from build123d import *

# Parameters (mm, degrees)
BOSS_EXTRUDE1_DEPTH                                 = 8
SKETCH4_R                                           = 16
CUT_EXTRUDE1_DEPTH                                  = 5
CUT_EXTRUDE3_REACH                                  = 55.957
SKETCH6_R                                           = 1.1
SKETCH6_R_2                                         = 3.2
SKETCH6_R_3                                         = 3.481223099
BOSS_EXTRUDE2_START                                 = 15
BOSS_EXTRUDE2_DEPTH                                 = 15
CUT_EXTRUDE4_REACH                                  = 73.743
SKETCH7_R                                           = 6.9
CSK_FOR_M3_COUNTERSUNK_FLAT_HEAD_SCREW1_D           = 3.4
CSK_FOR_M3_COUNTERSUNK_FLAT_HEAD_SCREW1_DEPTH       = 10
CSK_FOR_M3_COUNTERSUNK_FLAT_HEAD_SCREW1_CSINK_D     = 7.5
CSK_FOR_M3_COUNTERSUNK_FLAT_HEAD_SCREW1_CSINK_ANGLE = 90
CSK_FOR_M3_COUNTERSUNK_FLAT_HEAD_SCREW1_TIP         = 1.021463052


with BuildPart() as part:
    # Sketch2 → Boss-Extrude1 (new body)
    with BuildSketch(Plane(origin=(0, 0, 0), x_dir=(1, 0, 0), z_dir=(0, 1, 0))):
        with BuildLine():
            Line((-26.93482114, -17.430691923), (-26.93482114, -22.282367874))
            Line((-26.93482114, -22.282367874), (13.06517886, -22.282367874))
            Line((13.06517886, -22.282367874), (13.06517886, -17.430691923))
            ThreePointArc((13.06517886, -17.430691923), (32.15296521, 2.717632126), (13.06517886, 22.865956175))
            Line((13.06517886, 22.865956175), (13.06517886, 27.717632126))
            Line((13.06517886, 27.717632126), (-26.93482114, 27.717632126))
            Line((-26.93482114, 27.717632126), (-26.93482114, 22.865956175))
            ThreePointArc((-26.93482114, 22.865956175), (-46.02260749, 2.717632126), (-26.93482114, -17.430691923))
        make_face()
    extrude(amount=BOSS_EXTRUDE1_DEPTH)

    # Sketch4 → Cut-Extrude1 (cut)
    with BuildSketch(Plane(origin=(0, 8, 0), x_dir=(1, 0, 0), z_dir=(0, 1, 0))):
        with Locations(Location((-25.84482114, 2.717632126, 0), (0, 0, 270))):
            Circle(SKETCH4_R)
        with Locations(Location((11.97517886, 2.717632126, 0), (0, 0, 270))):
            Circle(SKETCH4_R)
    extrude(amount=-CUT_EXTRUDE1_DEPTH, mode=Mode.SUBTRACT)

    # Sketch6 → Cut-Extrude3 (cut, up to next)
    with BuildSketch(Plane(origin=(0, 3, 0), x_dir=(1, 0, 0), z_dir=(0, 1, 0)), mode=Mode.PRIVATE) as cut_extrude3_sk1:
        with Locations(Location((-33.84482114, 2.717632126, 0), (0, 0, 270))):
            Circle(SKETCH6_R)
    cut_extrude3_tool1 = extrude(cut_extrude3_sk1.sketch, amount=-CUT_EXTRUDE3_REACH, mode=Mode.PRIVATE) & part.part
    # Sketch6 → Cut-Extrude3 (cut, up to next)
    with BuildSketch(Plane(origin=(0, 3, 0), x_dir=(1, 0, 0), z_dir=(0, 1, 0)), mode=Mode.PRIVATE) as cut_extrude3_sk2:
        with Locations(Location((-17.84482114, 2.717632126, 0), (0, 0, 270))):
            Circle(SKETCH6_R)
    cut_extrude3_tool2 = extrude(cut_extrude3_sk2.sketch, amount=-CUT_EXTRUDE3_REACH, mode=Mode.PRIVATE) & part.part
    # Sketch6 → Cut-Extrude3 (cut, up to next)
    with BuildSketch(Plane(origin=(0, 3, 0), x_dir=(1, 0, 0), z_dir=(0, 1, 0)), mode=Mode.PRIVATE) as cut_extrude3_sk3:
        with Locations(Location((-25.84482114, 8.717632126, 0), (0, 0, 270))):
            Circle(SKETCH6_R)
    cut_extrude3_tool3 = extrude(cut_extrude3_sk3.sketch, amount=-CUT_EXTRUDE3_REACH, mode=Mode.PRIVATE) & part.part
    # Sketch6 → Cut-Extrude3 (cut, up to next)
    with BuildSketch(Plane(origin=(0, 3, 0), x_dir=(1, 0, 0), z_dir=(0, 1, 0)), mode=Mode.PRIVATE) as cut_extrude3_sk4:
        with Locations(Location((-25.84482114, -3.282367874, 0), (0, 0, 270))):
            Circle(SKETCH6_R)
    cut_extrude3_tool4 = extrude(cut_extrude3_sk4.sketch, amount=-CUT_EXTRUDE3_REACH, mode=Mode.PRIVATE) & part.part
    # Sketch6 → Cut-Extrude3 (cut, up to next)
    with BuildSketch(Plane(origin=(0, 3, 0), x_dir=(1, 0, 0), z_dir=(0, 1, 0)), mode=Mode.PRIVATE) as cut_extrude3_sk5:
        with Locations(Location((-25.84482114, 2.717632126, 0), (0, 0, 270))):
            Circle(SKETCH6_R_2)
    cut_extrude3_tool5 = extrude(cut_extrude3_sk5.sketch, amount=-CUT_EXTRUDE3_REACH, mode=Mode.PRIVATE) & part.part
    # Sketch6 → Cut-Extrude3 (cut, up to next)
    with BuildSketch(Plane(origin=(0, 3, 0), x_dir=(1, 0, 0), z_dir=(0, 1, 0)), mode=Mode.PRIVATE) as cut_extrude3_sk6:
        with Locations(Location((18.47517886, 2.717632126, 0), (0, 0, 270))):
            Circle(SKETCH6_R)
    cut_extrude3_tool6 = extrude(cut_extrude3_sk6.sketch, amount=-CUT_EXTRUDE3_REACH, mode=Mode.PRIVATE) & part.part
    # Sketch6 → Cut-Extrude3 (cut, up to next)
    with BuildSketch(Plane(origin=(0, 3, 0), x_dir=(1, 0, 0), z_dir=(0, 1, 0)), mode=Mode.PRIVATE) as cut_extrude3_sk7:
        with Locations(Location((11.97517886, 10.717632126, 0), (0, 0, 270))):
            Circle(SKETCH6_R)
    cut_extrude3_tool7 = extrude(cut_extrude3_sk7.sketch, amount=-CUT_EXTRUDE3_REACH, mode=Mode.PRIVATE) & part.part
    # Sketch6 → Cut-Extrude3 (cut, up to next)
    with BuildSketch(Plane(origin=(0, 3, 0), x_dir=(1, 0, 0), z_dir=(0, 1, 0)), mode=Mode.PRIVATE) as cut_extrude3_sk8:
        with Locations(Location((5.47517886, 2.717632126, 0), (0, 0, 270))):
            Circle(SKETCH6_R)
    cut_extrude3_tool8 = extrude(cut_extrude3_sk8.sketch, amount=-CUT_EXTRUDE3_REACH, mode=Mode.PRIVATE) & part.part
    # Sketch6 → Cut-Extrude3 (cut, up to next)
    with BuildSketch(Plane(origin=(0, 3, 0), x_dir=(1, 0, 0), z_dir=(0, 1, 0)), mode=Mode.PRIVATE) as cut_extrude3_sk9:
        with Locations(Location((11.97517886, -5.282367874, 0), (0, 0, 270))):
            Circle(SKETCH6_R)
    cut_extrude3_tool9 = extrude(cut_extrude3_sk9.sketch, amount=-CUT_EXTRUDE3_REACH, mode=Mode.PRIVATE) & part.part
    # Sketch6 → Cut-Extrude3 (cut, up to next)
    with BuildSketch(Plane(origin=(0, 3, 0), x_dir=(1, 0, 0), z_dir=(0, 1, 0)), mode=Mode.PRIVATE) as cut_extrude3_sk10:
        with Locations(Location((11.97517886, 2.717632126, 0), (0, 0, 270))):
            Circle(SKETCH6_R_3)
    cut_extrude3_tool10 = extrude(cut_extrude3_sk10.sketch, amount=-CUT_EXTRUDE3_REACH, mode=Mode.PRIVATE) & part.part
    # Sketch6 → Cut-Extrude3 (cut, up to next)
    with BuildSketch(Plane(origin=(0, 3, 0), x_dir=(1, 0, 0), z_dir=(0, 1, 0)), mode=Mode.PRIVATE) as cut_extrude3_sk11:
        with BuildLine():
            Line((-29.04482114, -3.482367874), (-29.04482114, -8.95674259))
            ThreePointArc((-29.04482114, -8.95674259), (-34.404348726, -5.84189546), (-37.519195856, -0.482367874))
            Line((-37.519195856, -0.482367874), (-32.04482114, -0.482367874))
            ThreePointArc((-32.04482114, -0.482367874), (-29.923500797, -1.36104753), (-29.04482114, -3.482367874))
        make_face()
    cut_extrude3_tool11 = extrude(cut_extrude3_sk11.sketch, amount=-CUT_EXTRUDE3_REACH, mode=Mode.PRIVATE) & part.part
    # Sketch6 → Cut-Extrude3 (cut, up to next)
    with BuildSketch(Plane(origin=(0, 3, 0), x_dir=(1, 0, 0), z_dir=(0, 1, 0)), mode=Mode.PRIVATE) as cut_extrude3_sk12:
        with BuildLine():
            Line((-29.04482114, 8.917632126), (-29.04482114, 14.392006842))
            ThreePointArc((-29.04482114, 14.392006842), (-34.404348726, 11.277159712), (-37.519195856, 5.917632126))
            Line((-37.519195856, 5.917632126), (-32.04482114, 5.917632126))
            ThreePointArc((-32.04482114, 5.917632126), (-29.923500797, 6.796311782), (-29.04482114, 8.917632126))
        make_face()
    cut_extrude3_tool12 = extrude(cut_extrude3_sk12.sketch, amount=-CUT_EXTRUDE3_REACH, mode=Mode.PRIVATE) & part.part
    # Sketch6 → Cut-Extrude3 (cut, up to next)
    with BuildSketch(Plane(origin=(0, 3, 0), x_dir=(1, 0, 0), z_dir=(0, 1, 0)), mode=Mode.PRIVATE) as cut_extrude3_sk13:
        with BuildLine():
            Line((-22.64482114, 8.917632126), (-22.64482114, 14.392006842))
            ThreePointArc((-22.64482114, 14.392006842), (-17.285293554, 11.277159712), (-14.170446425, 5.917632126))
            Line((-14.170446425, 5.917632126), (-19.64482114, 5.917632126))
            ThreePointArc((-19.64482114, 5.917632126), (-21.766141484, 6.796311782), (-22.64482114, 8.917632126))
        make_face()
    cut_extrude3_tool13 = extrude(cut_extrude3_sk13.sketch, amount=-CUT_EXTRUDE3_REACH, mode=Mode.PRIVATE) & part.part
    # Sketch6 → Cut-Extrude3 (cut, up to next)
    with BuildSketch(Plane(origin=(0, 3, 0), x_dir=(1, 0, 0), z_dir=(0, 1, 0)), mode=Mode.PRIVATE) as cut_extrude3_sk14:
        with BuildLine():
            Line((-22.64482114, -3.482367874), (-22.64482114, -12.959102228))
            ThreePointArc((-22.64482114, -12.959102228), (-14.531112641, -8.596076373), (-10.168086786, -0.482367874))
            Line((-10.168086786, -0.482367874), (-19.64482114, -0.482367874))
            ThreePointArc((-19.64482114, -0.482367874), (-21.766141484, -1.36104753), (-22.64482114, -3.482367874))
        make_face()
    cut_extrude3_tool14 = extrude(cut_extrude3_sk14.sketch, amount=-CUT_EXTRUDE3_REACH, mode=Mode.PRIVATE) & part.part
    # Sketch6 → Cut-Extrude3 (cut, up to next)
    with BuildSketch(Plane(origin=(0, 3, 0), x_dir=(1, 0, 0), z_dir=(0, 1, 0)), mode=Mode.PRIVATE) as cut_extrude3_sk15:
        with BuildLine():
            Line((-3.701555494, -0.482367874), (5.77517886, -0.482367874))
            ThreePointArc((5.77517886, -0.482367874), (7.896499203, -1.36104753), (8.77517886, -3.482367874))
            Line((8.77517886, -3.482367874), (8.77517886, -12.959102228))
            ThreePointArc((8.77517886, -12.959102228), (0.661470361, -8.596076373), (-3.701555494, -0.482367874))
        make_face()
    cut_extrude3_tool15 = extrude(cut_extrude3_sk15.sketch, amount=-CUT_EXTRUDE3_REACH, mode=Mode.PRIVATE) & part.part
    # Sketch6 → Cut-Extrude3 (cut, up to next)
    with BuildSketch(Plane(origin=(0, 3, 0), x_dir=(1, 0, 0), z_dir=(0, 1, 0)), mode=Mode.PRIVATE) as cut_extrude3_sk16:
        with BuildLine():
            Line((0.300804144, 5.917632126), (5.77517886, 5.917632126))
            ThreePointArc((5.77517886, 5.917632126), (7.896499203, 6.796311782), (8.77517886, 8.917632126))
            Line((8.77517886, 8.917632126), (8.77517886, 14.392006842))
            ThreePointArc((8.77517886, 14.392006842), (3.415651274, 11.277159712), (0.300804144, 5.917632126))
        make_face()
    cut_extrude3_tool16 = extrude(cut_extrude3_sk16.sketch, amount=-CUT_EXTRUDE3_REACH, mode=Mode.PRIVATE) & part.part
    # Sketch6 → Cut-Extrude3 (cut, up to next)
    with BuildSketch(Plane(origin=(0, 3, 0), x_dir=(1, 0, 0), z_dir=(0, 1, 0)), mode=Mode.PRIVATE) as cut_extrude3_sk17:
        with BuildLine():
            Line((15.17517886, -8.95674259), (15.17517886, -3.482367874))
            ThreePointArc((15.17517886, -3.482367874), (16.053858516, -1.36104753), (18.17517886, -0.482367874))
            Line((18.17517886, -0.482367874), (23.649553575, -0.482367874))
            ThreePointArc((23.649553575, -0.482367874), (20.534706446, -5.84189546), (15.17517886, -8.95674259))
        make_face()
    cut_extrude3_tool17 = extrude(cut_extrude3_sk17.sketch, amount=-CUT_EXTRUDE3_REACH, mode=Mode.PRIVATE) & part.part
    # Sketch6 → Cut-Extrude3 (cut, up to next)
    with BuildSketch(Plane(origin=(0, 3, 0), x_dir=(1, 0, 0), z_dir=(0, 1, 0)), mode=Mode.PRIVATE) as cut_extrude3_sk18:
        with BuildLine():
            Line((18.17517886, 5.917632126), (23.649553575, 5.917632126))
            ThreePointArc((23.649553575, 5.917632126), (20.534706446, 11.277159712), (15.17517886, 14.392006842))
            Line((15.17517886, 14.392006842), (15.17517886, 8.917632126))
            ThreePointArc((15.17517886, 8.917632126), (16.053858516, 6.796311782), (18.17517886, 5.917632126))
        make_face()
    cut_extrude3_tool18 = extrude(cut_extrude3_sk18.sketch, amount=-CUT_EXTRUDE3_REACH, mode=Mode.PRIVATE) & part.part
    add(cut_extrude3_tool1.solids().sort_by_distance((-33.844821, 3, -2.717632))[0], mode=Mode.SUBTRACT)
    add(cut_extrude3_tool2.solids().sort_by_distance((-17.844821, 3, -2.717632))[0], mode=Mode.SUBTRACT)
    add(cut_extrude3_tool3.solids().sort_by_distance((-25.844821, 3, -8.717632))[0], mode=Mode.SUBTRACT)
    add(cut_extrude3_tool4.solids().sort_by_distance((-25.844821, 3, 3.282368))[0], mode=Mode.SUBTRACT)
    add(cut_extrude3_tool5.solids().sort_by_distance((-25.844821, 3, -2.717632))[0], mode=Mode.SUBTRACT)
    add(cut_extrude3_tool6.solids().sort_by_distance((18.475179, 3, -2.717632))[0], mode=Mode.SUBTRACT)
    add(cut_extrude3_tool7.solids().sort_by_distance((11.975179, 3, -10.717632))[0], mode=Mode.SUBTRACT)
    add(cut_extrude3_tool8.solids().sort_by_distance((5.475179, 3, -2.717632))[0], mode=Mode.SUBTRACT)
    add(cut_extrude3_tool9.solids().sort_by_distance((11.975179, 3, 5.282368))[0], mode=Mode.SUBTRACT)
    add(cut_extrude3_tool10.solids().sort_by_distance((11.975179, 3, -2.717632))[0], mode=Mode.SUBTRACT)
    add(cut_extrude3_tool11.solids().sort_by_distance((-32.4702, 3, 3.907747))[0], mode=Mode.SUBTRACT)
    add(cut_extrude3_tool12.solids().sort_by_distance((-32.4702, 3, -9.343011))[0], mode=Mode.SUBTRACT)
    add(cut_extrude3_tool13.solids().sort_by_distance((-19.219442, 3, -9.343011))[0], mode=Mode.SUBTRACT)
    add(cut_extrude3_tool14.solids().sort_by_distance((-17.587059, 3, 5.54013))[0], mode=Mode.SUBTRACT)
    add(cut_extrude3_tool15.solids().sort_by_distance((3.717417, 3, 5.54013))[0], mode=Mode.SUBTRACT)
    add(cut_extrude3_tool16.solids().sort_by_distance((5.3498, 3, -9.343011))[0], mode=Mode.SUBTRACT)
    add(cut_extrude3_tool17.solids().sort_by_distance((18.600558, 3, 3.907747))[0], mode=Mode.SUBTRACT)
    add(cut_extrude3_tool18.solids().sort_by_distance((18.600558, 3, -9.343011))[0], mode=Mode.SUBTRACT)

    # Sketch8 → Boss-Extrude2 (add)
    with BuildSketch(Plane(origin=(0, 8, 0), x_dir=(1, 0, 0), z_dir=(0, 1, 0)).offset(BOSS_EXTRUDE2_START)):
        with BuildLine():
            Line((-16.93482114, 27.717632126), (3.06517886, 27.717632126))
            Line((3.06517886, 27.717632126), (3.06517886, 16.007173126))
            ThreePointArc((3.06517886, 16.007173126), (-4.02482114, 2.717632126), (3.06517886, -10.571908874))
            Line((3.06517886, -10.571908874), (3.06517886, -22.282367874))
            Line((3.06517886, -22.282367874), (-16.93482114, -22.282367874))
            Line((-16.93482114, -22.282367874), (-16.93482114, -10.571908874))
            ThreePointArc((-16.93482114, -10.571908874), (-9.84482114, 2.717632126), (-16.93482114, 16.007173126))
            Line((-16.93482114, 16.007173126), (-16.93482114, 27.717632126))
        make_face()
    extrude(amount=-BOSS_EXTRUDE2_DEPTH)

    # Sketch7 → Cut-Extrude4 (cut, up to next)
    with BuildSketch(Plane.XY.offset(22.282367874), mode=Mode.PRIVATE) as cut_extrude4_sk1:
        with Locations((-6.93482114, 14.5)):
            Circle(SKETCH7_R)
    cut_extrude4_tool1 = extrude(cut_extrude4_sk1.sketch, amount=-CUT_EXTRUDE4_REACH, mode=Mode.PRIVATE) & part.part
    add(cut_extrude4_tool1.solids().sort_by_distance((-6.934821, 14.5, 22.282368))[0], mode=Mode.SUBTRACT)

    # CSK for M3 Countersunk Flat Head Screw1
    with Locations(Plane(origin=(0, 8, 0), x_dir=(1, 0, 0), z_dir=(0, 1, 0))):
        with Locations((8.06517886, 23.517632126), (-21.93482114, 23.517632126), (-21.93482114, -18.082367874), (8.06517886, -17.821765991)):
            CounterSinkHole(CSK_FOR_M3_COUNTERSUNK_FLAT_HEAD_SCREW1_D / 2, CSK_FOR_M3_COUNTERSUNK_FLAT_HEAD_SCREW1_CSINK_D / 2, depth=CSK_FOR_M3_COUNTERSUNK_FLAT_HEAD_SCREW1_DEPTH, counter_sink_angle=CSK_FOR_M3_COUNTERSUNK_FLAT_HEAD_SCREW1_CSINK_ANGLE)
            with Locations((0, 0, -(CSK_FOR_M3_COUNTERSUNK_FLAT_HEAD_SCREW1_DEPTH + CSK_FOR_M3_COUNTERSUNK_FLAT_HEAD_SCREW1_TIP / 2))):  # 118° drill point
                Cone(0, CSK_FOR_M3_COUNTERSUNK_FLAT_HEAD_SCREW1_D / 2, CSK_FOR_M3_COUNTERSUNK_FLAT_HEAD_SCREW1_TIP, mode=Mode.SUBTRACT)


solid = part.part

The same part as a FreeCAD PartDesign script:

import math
import FreeCAD as App
import Part
import Sketcher
from FreeCAD import Vector
Q = App.Units.Quantity

doc = App.newDocument("Part")
body = doc.addObject("PartDesign::Body", "Body")

sketch1 = body.newObject("Sketcher::SketchObject", "Sketch")
sketch1.AttachmentSupport = (doc.getObject("XZ_Plane"), [""])
sketch1.MapMode = "FlatFace"
sketch1.addGeometry(Part.LineSegment(Vector(-26.9, 17.4, 0), Vector(-26.9, 22.3, 0)), False)
sketch1.addGeometry(Part.LineSegment(Vector(-26.9, 22.3, 0), Vector(13.1, 22.3, 0)), False)
sketch1.addGeometry(Part.LineSegment(Vector(13.1, 22.3, 0), Vector(13.1, 17.4, 0)), False)
sketch1.addGeometry(Part.ArcOfCircle(Part.Circle(Vector(12, -2.7, 0), Vector(0, 0, 1), 20.2), math.radians(-87), math.radians(87)), False)
sketch1.addGeometry(Part.LineSegment(Vector(13.1, -22.9, 0), Vector(13.1, -27.7, 0)), False)
sketch1.addGeometry(Part.LineSegment(Vector(13.1, -27.7, 0), Vector(-26.9, -27.7, 0)), False)
sketch1.addGeometry(Part.LineSegment(Vector(-26.9, -27.7, 0), Vector(-26.9, -22.9, 0)), False)
sketch1.addGeometry(Part.ArcOfCircle(Part.Circle(Vector(-25.8, -2.7, 0), Vector(0, 0, 1), 20.2), math.radians(93), math.radians(267)), False)
sketch1.addConstraint(Sketcher.Constraint("Coincident", 0, 2, 1, 1))
sketch1.addConstraint(Sketcher.Constraint("Coincident", 1, 2, 2, 1))
sketch1.addConstraint(Sketcher.Constraint("Coincident", 2, 2, 3, 2))
sketch1.addConstraint(Sketcher.Constraint("Coincident", 3, 1, 4, 1))
sketch1.addConstraint(Sketcher.Constraint("Coincident", 4, 2, 5, 1))
sketch1.addConstraint(Sketcher.Constraint("Coincident", 5, 2, 6, 1))
sketch1.addConstraint(Sketcher.Constraint("Coincident", 6, 2, 7, 2))
sketch1.addConstraint(Sketcher.Constraint("Coincident", 7, 1, 0, 1))
sketch1.addConstraint(Sketcher.Constraint("Vertical", 0))
sketch1.addConstraint(Sketcher.Constraint("Horizontal", 1))
sketch1.addConstraint(Sketcher.Constraint("Vertical", 2))
sketch1.addConstraint(Sketcher.Constraint("Vertical", 4))
sketch1.addConstraint(Sketcher.Constraint("Horizontal", 5))
sketch1.addConstraint(Sketcher.Constraint("Vertical", 6))
sketch1.addConstraint(Sketcher.Constraint("Equal", 3, 7))
sketch1.addConstraint(Sketcher.Constraint("Horizontal", 3, 3, 7, 3))
sketch1.addConstraint(Sketcher.Constraint("Horizontal", 3, 1, 6, 2))
sketch1.addConstraint(Sketcher.Constraint("Horizontal", 2, 2, 7, 1))
sketch1.addConstraint(Sketcher.Constraint("Vertical", 2, 2, 3, 1))
sketch1.addConstraint(Sketcher.Constraint("Equal", 2, 4))
sketch1.addConstraint(Sketcher.Constraint("DistanceX", 1, 1, 1, 2, Q("40 mm")))
sketch1.addConstraint(Sketcher.Constraint("DistanceY", 7, 3, 0, 2, Q("25 mm")))
sketch1.addConstraint(Sketcher.Constraint("DistanceX", 7, 3, 3, 3, Q("37.82 mm")))
sketch1.addConstraint(Sketcher.Constraint("Radius", 3, Q("20.177786 mm")))
sketch1.addConstraint(Sketcher.Constraint("DistanceX", -1, 1, 3, 3, Q("11.975179 mm")))
sketch1.addConstraint(Sketcher.Constraint("DistanceY", -1, 1, 2, 2, Q("17.430692 mm")))
pad1 = body.newObject("PartDesign::Pad", "Pad")
pad1.Profile = sketch1
pad1.Length = 8
pad1.Reversed = True

sketch2 = body.newObject("Sketcher::SketchObject", "Sketch001")
sketch2.AttachmentSupport = (doc.getObject("XZ_Plane"), [""])
sketch2.MapMode = "FlatFace"
sketch2.AttachmentOffset = App.Placement(Vector(0, 0, -8), App.Rotation())
sketch2.addGeometry(Part.Circle(Vector(-26, -3, 0), Vector(0, 0, 1), 16), False)
sketch2.addGeometry(Part.Circle(Vector(12, -3, 0), Vector(0, 0, 1), 16), False)
sketch2.addConstraint(Sketcher.Constraint("Equal", 0, 1))
sketch2.addConstraint(Sketcher.Constraint("Horizontal", 0, 3, 1, 3))
sketch2.addConstraint(Sketcher.Constraint("Diameter", 0, Q("32 mm")))
sketch2.addConstraint(Sketcher.Constraint("DistanceX", 0, 3, 1, 3, Q("37.82 mm")))
sketch2.addConstraint(Sketcher.Constraint("DistanceX", 0, 3, -1, 1, Q("25.844821 mm")))
sketch2.addConstraint(Sketcher.Constraint("DistanceY", 0, 3, -1, 1, Q("2.717632 mm")))
pocket1 = body.newObject("PartDesign::Pocket", "Pocket")
pocket1.Profile = sketch2
pocket1.Length = 5
pocket1.Reversed = True

sketch3 = body.newObject("Sketcher::SketchObject", "Sketch002")
sketch3.AttachmentSupport = (doc.getObject("XZ_Plane"), [""])
sketch3.MapMode = "FlatFace"
sketch3.AttachmentOffset = App.Placement(Vector(0, 0, -3), App.Rotation())
sketch3.addGeometry(Part.Circle(Vector(-33.8, -2.7, 0), Vector(0, 0, 1), 1.1), False)
sketch3.addConstraint(Sketcher.Constraint("Diameter", 0, Q("2.2 mm")))
sketch3.addConstraint(Sketcher.Constraint("DistanceX", 0, 3, -1, 1, Q("33.844821 mm")))
sketch3.addConstraint(Sketcher.Constraint("DistanceY", 0, 3, -1, 1, Q("2.717632 mm")))
pocket2 = body.newObject("PartDesign::Pocket", "Pocket001")
pocket2.Profile = sketch3
pocket2.Type = "UpToFirst"
pocket2.Reversed = True

sketch4 = body.newObject("Sketcher::SketchObject", "Sketch003")
sketch4.AttachmentSupport = (doc.getObject("XZ_Plane"), [""])
sketch4.MapMode = "FlatFace"
sketch4.AttachmentOffset = App.Placement(Vector(0, 0, -3), App.Rotation())
sketch4.addGeometry(Part.Circle(Vector(-17.8, -2.7, 0), Vector(0, 0, 1), 1.1), False)
sketch4.addConstraint(Sketcher.Constraint("Diameter", 0, Q("2.2 mm")))
sketch4.addConstraint(Sketcher.Constraint("DistanceX", 0, 3, -1, 1, Q("17.844821 mm")))
sketch4.addConstraint(Sketcher.Constraint("DistanceY", 0, 3, -1, 1, Q("2.717632 mm")))
pocket3 = body.newObject("PartDesign::Pocket", "Pocket002")
pocket3.Profile = sketch4
pocket3.Type = "UpToFirst"
pocket3.Reversed = True

sketch5 = body.newObject("Sketcher::SketchObject", "Sketch004")
sketch5.AttachmentSupport = (doc.getObject("XZ_Plane"), [""])
sketch5.MapMode = "FlatFace"
sketch5.AttachmentOffset = App.Placement(Vector(0, 0, -3), App.Rotation())
sketch5.addGeometry(Part.Circle(Vector(-25.8, -8.7, 0), Vector(0, 0, 1), 1.1), False)
sketch5.addConstraint(Sketcher.Constraint("Diameter", 0, Q("2.2 mm")))
sketch5.addConstraint(Sketcher.Constraint("DistanceX", 0, 3, -1, 1, Q("25.844821 mm")))
sketch5.addConstraint(Sketcher.Constraint("DistanceY", 0, 3, -1, 1, Q("8.717632 mm")))
pocket4 = body.newObject("PartDesign::Pocket", "Pocket003")
pocket4.Profile = sketch5
pocket4.Type = "UpToFirst"
pocket4.Reversed = True

sketch6 = body.newObject("Sketcher::SketchObject", "Sketch005")
sketch6.AttachmentSupport = (doc.getObject("XZ_Plane"), [""])
sketch6.MapMode = "FlatFace"
sketch6.AttachmentOffset = App.Placement(Vector(0, 0, -3), App.Rotation())
sketch6.addGeometry(Part.Circle(Vector(-25.8, 3.3, 0), Vector(0, 0, 1), 1.1), False)
sketch6.addConstraint(Sketcher.Constraint("Diameter", 0, Q("2.2 mm")))
sketch6.addConstraint(Sketcher.Constraint("DistanceX", 0, 3, -1, 1, Q("25.844821 mm")))
sketch6.addConstraint(Sketcher.Constraint("DistanceY", -1, 1, 0, 3, Q("3.282368 mm")))
pocket5 = body.newObject("PartDesign::Pocket", "Pocket004")
pocket5.Profile = sketch6
pocket5.Type = "UpToFirst"
pocket5.Reversed = True

sketch7 = body.newObject("Sketcher::SketchObject", "Sketch006")
sketch7.AttachmentSupport = (doc.getObject("XZ_Plane"), [""])
sketch7.MapMode = "FlatFace"
sketch7.AttachmentOffset = App.Placement(Vector(0, 0, -3), App.Rotation())
sketch7.addGeometry(Part.Circle(Vector(-25.8, -2.7, 0), Vector(0, 0, 1), 3.2), False)
sketch7.addConstraint(Sketcher.Constraint("Diameter", 0, Q("6.4 mm")))
sketch7.addConstraint(Sketcher.Constraint("DistanceX", 0, 3, -1, 1, Q("25.844821 mm")))
sketch7.addConstraint(Sketcher.Constraint("DistanceY", 0, 3, -1, 1, Q("2.717632 mm")))
pocket6 = body.newObject("PartDesign::Pocket", "Pocket005")
pocket6.Profile = sketch7
pocket6.Type = "UpToFirst"
pocket6.Reversed = True

sketch8 = body.newObject("Sketcher::SketchObject", "Sketch007")
sketch8.AttachmentSupport = (doc.getObject("XZ_Plane"), [""])
sketch8.MapMode = "FlatFace"
sketch8.AttachmentOffset = App.Placement(Vector(0, 0, -3), App.Rotation())
sketch8.addGeometry(Part.Circle(Vector(18.5, -2.7, 0), Vector(0, 0, 1), 1.1), False)
sketch8.addConstraint(Sketcher.Constraint("Diameter", 0, Q("2.2 mm")))
sketch8.addConstraint(Sketcher.Constraint("DistanceX", -1, 1, 0, 3, Q("18.475179 mm")))
sketch8.addConstraint(Sketcher.Constraint("DistanceY", 0, 3, -1, 1, Q("2.717632 mm")))
pocket7 = body.newObject("PartDesign::Pocket", "Pocket006")
pocket7.Profile = sketch8
pocket7.Type = "UpToFirst"
pocket7.Reversed = True

sketch9 = body.newObject("Sketcher::SketchObject", "Sketch008")
sketch9.AttachmentSupport = (doc.getObject("XZ_Plane"), [""])
sketch9.MapMode = "FlatFace"
sketch9.AttachmentOffset = App.Placement(Vector(0, 0, -3), App.Rotation())
sketch9.addGeometry(Part.Circle(Vector(12, -10.7, 0), Vector(0, 0, 1), 1.1), False)
sketch9.addConstraint(Sketcher.Constraint("Diameter", 0, Q("2.2 mm")))
sketch9.addConstraint(Sketcher.Constraint("DistanceX", -1, 1, 0, 3, Q("11.975179 mm")))
sketch9.addConstraint(Sketcher.Constraint("DistanceY", 0, 3, -1, 1, Q("10.717632 mm")))
pocket8 = body.newObject("PartDesign::Pocket", "Pocket007")
pocket8.Profile = sketch9
pocket8.Type = "UpToFirst"
pocket8.Reversed = True

sketch10 = body.newObject("Sketcher::SketchObject", "Sketch009")
sketch10.AttachmentSupport = (doc.getObject("XZ_Plane"), [""])
sketch10.MapMode = "FlatFace"
sketch10.AttachmentOffset = App.Placement(Vector(0, 0, -3), App.Rotation())
sketch10.addGeometry(Part.Circle(Vector(5.5, -2.7, 0), Vector(0, 0, 1), 1.1), False)
sketch10.addConstraint(Sketcher.Constraint("Diameter", 0, Q("2.2 mm")))
sketch10.addConstraint(Sketcher.Constraint("DistanceX", -1, 1, 0, 3, Q("5.475179 mm")))
sketch10.addConstraint(Sketcher.Constraint("DistanceY", 0, 3, -1, 1, Q("2.717632 mm")))
pocket9 = body.newObject("PartDesign::Pocket", "Pocket008")
pocket9.Profile = sketch10
pocket9.Type = "UpToFirst"
pocket9.Reversed = True

sketch11 = body.newObject("Sketcher::SketchObject", "Sketch010")
sketch11.AttachmentSupport = (doc.getObject("XZ_Plane"), [""])
sketch11.MapMode = "FlatFace"
sketch11.AttachmentOffset = App.Placement(Vector(0, 0, -3), App.Rotation())
sketch11.addGeometry(Part.Circle(Vector(12, 5.3, 0), Vector(0, 0, 1), 1.1), False)
sketch11.addConstraint(Sketcher.Constraint("Diameter", 0, Q("2.2 mm")))
sketch11.addConstraint(Sketcher.Constraint("DistanceX", -1, 1, 0, 3, Q("11.975179 mm")))
sketch11.addConstraint(Sketcher.Constraint("DistanceY", -1, 1, 0, 3, Q("5.282368 mm")))
pocket10 = body.newObject("PartDesign::Pocket", "Pocket009")
pocket10.Profile = sketch11
pocket10.Type = "UpToFirst"
pocket10.Reversed = True

sketch12 = body.newObject("Sketcher::SketchObject", "Sketch011")
sketch12.AttachmentSupport = (doc.getObject("XZ_Plane"), [""])
sketch12.MapMode = "FlatFace"
sketch12.AttachmentOffset = App.Placement(Vector(0, 0, -3), App.Rotation())
sketch12.addGeometry(Part.Circle(Vector(12, -2.7, 0), Vector(0, 0, 1), 3.5), False)
sketch12.addConstraint(Sketcher.Constraint("Diameter", 0, Q("6.962446 mm")))
sketch12.addConstraint(Sketcher.Constraint("DistanceX", -1, 1, 0, 3, Q("11.975179 mm")))
sketch12.addConstraint(Sketcher.Constraint("DistanceY", 0, 3, -1, 1, Q("2.717632 mm")))
pocket11 = body.newObject("PartDesign::Pocket", "Pocket010")
pocket11.Profile = sketch12
pocket11.Type = "UpToFirst"
pocket11.Reversed = True

sketch13 = body.newObject("Sketcher::SketchObject", "Sketch012")
sketch13.AttachmentSupport = (doc.getObject("XZ_Plane"), [""])
sketch13.MapMode = "FlatFace"
sketch13.AttachmentOffset = App.Placement(Vector(0, 0, -3), App.Rotation())
sketch13.addGeometry(Part.LineSegment(Vector(-29, 9, 0), Vector(-29, 3.5, 0)), False)
sketch13.addGeometry(Part.ArcOfCircle(Part.Circle(Vector(-32, 3.5, 0), Vector(0, 0, 1), 3), math.radians(-90), math.radians(0)), False)
sketch13.addGeometry(Part.LineSegment(Vector(-32, 0.5, 0), Vector(-37.5, 0.5, 0)), False)
sketch13.addGeometry(Part.ArcOfCircle(Part.Circle(Vector(-25.8, -2.7, 0), Vector(0, 0, 1), 12.1), math.radians(105), math.radians(165)), False)
sketch13.addConstraint(Sketcher.Constraint("Tangent", 0, 2, 1, 2))
sketch13.addConstraint(Sketcher.Constraint("Tangent", 1, 1, 2, 1))
sketch13.addConstraint(Sketcher.Constraint("Coincident", 2, 2, 3, 2))
sketch13.addConstraint(Sketcher.Constraint("Coincident", 3, 1, 0, 1))
sketch13.addConstraint(Sketcher.Constraint("Vertical", 0))
sketch13.addConstraint(Sketcher.Constraint("Horizontal", 2))
sketch13.addConstraint(Sketcher.Constraint("Equal", 2, 0))
sketch13.addConstraint(Sketcher.Constraint("Radius", 1, Q("3 mm")))
sketch13.addConstraint(Sketcher.Constraint("Radius", 3, Q("12.105 mm")))
sketch13.addConstraint(Sketcher.Constraint("DistanceX", 1, 3, 3, 3, Q("6.2 mm")))
sketch13.addConstraint(Sketcher.Constraint("DistanceX", 1, 3, -1, 1, Q("32.044821 mm")))
sketch13.addConstraint(Sketcher.Constraint("DistanceY", -1, 1, 1, 3, Q("3.482368 mm")))
pocket12 = body.newObject("PartDesign::Pocket", "Pocket011")
pocket12.Profile = sketch13
pocket12.Type = "UpToFirst"
pocket12.Reversed = True

sketch14 = body.newObject("Sketcher::SketchObject", "Sketch013")
sketch14.AttachmentSupport = (doc.getObject("XZ_Plane"), [""])
sketch14.MapMode = "FlatFace"
sketch14.AttachmentOffset = App.Placement(Vector(0, 0, -3), App.Rotation())
sketch14.addGeometry(Part.LineSegment(Vector(-29, -8.9, 0), Vector(-29, -14.4, 0)), False)
sketch14.addGeometry(Part.ArcOfCircle(Part.Circle(Vector(-25.8, -2.7, 0), Vector(0, 0, 1), 12.1), math.radians(-165), math.radians(-105)), False)
sketch14.addGeometry(Part.LineSegment(Vector(-37.5, -5.9, 0), Vector(-32, -5.9, 0)), False)
sketch14.addGeometry(Part.ArcOfCircle(Part.Circle(Vector(-32, -8.9, 0), Vector(0, 0, 1), 3), math.radians(0), math.radians(90)), False)
sketch14.addConstraint(Sketcher.Constraint("Coincident", 0, 2, 1, 2))
sketch14.addConstraint(Sketcher.Constraint("Coincident", 1, 1, 2, 1))
sketch14.addConstraint(Sketcher.Constraint("Tangent", 2, 2, 3, 2))
sketch14.addConstraint(Sketcher.Constraint("Tangent", 3, 1, 0, 1))
sketch14.addConstraint(Sketcher.Constraint("Vertical", 0))
sketch14.addConstraint(Sketcher.Constraint("Horizontal", 2))
sketch14.addConstraint(Sketcher.Constraint("Equal", 2, 0))
sketch14.addConstraint(Sketcher.Constraint("Radius", 3, Q("3 mm")))
sketch14.addConstraint(Sketcher.Constraint("Radius", 1, Q("12.105 mm")))
sketch14.addConstraint(Sketcher.Constraint("DistanceX", 3, 3, 1, 3, Q("6.2 mm")))
sketch14.addConstraint(Sketcher.Constraint("DistanceX", 1, 3, -1, 1, Q("25.844821 mm")))
sketch14.addConstraint(Sketcher.Constraint("DistanceY", 1, 3, -1, 1, Q("2.717632 mm")))
pocket13 = body.newObject("PartDesign::Pocket", "Pocket012")
pocket13.Profile = sketch14
pocket13.Type = "UpToFirst"
pocket13.Reversed = True

sketch15 = body.newObject("Sketcher::SketchObject", "Sketch014")
sketch15.AttachmentSupport = (doc.getObject("XZ_Plane"), [""])
sketch15.MapMode = "FlatFace"
sketch15.AttachmentOffset = App.Placement(Vector(0, 0, -3), App.Rotation())
sketch15.addGeometry(Part.LineSegment(Vector(-22.6, -14.4, 0), Vector(-22.6, -8.9, 0)), False)
sketch15.addGeometry(Part.ArcOfCircle(Part.Circle(Vector(-19.6, -8.9, 0), Vector(0, 0, 1), 3), math.radians(90), math.radians(180)), False)
sketch15.addGeometry(Part.LineSegment(Vector(-19.6, -5.9, 0), Vector(-14.2, -5.9, 0)), False)
sketch15.addGeometry(Part.ArcOfCircle(Part.Circle(Vector(-25.8, -2.7, 0), Vector(0, 0, 1), 12.1), math.radians(-75), math.radians(-15)), False)
sketch15.addConstraint(Sketcher.Constraint("Tangent", 0, 2, 1, 2))
sketch15.addConstraint(Sketcher.Constraint("Tangent", 1, 1, 2, 1))
sketch15.addConstraint(Sketcher.Constraint("Coincident", 2, 2, 3, 2))
sketch15.addConstraint(Sketcher.Constraint("Coincident", 3, 1, 0, 1))
sketch15.addConstraint(Sketcher.Constraint("Vertical", 0))
sketch15.addConstraint(Sketcher.Constraint("Horizontal", 2))
sketch15.addConstraint(Sketcher.Constraint("Equal", 2, 0))
sketch15.addConstraint(Sketcher.Constraint("Radius", 1, Q("3 mm")))
sketch15.addConstraint(Sketcher.Constraint("Radius", 3, Q("12.105 mm")))
sketch15.addConstraint(Sketcher.Constraint("DistanceX", 3, 3, 1, 3, Q("6.2 mm")))
sketch15.addConstraint(Sketcher.Constraint("DistanceX", 1, 3, -1, 1, Q("19.644821 mm")))
sketch15.addConstraint(Sketcher.Constraint("DistanceY", 1, 3, -1, 1, Q("8.917632 mm")))
pocket14 = body.newObject("PartDesign::Pocket", "Pocket013")
pocket14.Profile = sketch15
pocket14.Type = "UpToFirst"
pocket14.Reversed = True

sketch16 = body.newObject("Sketcher::SketchObject", "Sketch015")
sketch16.AttachmentSupport = (doc.getObject("XZ_Plane"), [""])
sketch16.MapMode = "FlatFace"
sketch16.AttachmentOffset = App.Placement(Vector(0, 0, -3), App.Rotation())
sketch16.addGeometry(Part.LineSegment(Vector(-22.6, 3.5, 0), Vector(-22.6, 13, 0)), False)
sketch16.addGeometry(Part.ArcOfCircle(Part.Circle(Vector(-25.8, -2.7, 0), Vector(0, 0, 1), 16), math.radians(12), math.radians(78)), False)
sketch16.addGeometry(Part.LineSegment(Vector(-10.2, 0.5, 0), Vector(-19.6, 0.5, 0)), False)
sketch16.addGeometry(Part.ArcOfCircle(Part.Circle(Vector(-19.6, 3.5, 0), Vector(0, 0, 1), 3), math.radians(180), math.radians(270)), False)
sketch16.addConstraint(Sketcher.Constraint("Coincident", 0, 2, 1, 2))
sketch16.addConstraint(Sketcher.Constraint("Coincident", 1, 1, 2, 1))
sketch16.addConstraint(Sketcher.Constraint("Tangent", 2, 2, 3, 2))
sketch16.addConstraint(Sketcher.Constraint("Tangent", 3, 1, 0, 1))
sketch16.addConstraint(Sketcher.Constraint("Vertical", 0))
sketch16.addConstraint(Sketcher.Constraint("Horizontal", 2))
sketch16.addConstraint(Sketcher.Constraint("Equal", 2, 0))
sketch16.addConstraint(Sketcher.Constraint("Radius", 1, Q("16 mm")))
sketch16.addConstraint(Sketcher.Constraint("Radius", 3, Q("3 mm")))
sketch16.addConstraint(Sketcher.Constraint("DistanceX", 1, 3, 3, 3, Q("6.2 mm")))
sketch16.addConstraint(Sketcher.Constraint("DistanceX", 1, 3, -1, 1, Q("25.844821 mm")))
sketch16.addConstraint(Sketcher.Constraint("DistanceY", 1, 3, -1, 1, Q("2.717632 mm")))
pocket15 = body.newObject("PartDesign::Pocket", "Pocket014")
pocket15.Profile = sketch16
pocket15.Type = "UpToFirst"
pocket15.Reversed = True

sketch17 = body.newObject("Sketcher::SketchObject", "Sketch016")
sketch17.AttachmentSupport = (doc.getObject("XZ_Plane"), [""])
sketch17.MapMode = "FlatFace"
sketch17.AttachmentOffset = App.Placement(Vector(0, 0, -3), App.Rotation())
sketch17.addGeometry(Part.LineSegment(Vector(5.8, 0.5, 0), Vector(-3.7, 0.5, 0)), False)
sketch17.addGeometry(Part.ArcOfCircle(Part.Circle(Vector(12, -2.7, 0), Vector(0, 0, 1), 16), math.radians(102), math.radians(168)), False)
sketch17.addGeometry(Part.LineSegment(Vector(8.8, 13, 0), Vector(8.8, 3.5, 0)), False)
sketch17.addGeometry(Part.ArcOfCircle(Part.Circle(Vector(5.8, 3.5, 0), Vector(0, 0, 1), 3), math.radians(-90), math.radians(0)), False)
sketch17.addConstraint(Sketcher.Constraint("Coincident", 0, 2, 1, 2))
sketch17.addConstraint(Sketcher.Constraint("Coincident", 1, 1, 2, 1))
sketch17.addConstraint(Sketcher.Constraint("Tangent", 2, 2, 3, 2))
sketch17.addConstraint(Sketcher.Constraint("Tangent", 3, 1, 0, 1))
sketch17.addConstraint(Sketcher.Constraint("Horizontal", 0))
sketch17.addConstraint(Sketcher.Constraint("Vertical", 2))
sketch17.addConstraint(Sketcher.Constraint("Equal", 0, 2))
sketch17.addConstraint(Sketcher.Constraint("Radius", 1, Q("16 mm")))
sketch17.addConstraint(Sketcher.Constraint("Radius", 3, Q("3 mm")))
sketch17.addConstraint(Sketcher.Constraint("DistanceX", 3, 3, 1, 3, Q("6.2 mm")))
sketch17.addConstraint(Sketcher.Constraint("DistanceX", -1, 1, 1, 3, Q("11.975179 mm")))
sketch17.addConstraint(Sketcher.Constraint("DistanceY", 1, 3, -1, 1, Q("2.717632 mm")))
pocket16 = body.newObject("PartDesign::Pocket", "Pocket015")
pocket16.Profile = sketch17
pocket16.Type = "UpToFirst"
pocket16.Reversed = True

sketch18 = body.newObject("Sketcher::SketchObject", "Sketch017")
sketch18.AttachmentSupport = (doc.getObject("XZ_Plane"), [""])
sketch18.MapMode = "FlatFace"
sketch18.AttachmentOffset = App.Placement(Vector(0, 0, -3), App.Rotation())
sketch18.addGeometry(Part.LineSegment(Vector(0.3, -5.9, 0), Vector(5.8, -5.9, 0)), False)
sketch18.addGeometry(Part.ArcOfCircle(Part.Circle(Vector(5.8, -8.9, 0), Vector(0, 0, 1), 3), math.radians(0), math.radians(90)), False)
sketch18.addGeometry(Part.LineSegment(Vector(8.8, -8.9, 0), Vector(8.8, -14.4, 0)), False)
sketch18.addGeometry(Part.ArcOfCircle(Part.Circle(Vector(12, -2.7, 0), Vector(0, 0, 1), 12.1), math.radians(-165), math.radians(-105)), False)
sketch18.addConstraint(Sketcher.Constraint("Tangent", 0, 2, 1, 2))
sketch18.addConstraint(Sketcher.Constraint("Tangent", 1, 1, 2, 1))
sketch18.addConstraint(Sketcher.Constraint("Coincident", 2, 2, 3, 2))
sketch18.addConstraint(Sketcher.Constraint("Coincident", 3, 1, 0, 1))
sketch18.addConstraint(Sketcher.Constraint("Horizontal", 0))
sketch18.addConstraint(Sketcher.Constraint("Vertical", 2))
sketch18.addConstraint(Sketcher.Constraint("Equal", 0, 2))
sketch18.addConstraint(Sketcher.Constraint("Radius", 1, Q("3 mm")))
sketch18.addConstraint(Sketcher.Constraint("Radius", 3, Q("12.105 mm")))
sketch18.addConstraint(Sketcher.Constraint("DistanceX", 1, 3, 3, 3, Q("6.2 mm")))
sketch18.addConstraint(Sketcher.Constraint("DistanceX", -1, 1, 1, 3, Q("5.775179 mm")))
sketch18.addConstraint(Sketcher.Constraint("DistanceY", 1, 3, -1, 1, Q("8.917632 mm")))
pocket17 = body.newObject("PartDesign::Pocket", "Pocket016")
pocket17.Profile = sketch18
pocket17.Type = "UpToFirst"
pocket17.Reversed = True

sketch19 = body.newObject("Sketcher::SketchObject", "Sketch018")
sketch19.AttachmentSupport = (doc.getObject("XZ_Plane"), [""])
sketch19.MapMode = "FlatFace"
sketch19.AttachmentOffset = App.Placement(Vector(0, 0, -3), App.Rotation())
sketch19.addGeometry(Part.LineSegment(Vector(15.2, 3.5, 0), Vector(15.2, 9, 0)), False)
sketch19.addGeometry(Part.ArcOfCircle(Part.Circle(Vector(12, -2.7, 0), Vector(0, 0, 1), 12.1), math.radians(15), math.radians(75)), False)
sketch19.addGeometry(Part.LineSegment(Vector(23.6, 0.5, 0), Vector(18.2, 0.5, 0)), False)
sketch19.addGeometry(Part.ArcOfCircle(Part.Circle(Vector(18.2, 3.5, 0), Vector(0, 0, 1), 3), math.radians(180), math.radians(270)), False)
sketch19.addConstraint(Sketcher.Constraint("Coincident", 0, 2, 1, 2))
sketch19.addConstraint(Sketcher.Constraint("Coincident", 1, 1, 2, 1))
sketch19.addConstraint(Sketcher.Constraint("Tangent", 2, 2, 3, 2))
sketch19.addConstraint(Sketcher.Constraint("Tangent", 3, 1, 0, 1))
sketch19.addConstraint(Sketcher.Constraint("Vertical", 0))
sketch19.addConstraint(Sketcher.Constraint("Horizontal", 2))
sketch19.addConstraint(Sketcher.Constraint("Equal", 2, 0))
sketch19.addConstraint(Sketcher.Constraint("Radius", 3, Q("3 mm")))
sketch19.addConstraint(Sketcher.Constraint("Radius", 1, Q("12.105 mm")))
sketch19.addConstraint(Sketcher.Constraint("DistanceX", 1, 3, 3, 3, Q("6.2 mm")))
sketch19.addConstraint(Sketcher.Constraint("DistanceX", -1, 1, 1, 3, Q("11.975179 mm")))
sketch19.addConstraint(Sketcher.Constraint("DistanceY", 1, 3, -1, 1, Q("2.717632 mm")))
pocket18 = body.newObject("PartDesign::Pocket", "Pocket017")
pocket18.Profile = sketch19
pocket18.Type = "UpToFirst"
pocket18.Reversed = True

sketch20 = body.newObject("Sketcher::SketchObject", "Sketch019")
sketch20.AttachmentSupport = (doc.getObject("XZ_Plane"), [""])
sketch20.MapMode = "FlatFace"
sketch20.AttachmentOffset = App.Placement(Vector(0, 0, -3), App.Rotation())
sketch20.addGeometry(Part.LineSegment(Vector(18.2, -5.9, 0), Vector(23.6, -5.9, 0)), False)
sketch20.addGeometry(Part.ArcOfCircle(Part.Circle(Vector(12, -2.7, 0), Vector(0, 0, 1), 12.1), math.radians(-75), math.radians(-15)), False)
sketch20.addGeometry(Part.LineSegment(Vector(15.2, -14.4, 0), Vector(15.2, -8.9, 0)), False)
sketch20.addGeometry(Part.ArcOfCircle(Part.Circle(Vector(18.2, -8.9, 0), Vector(0, 0, 1), 3), math.radians(90), math.radians(180)), False)
sketch20.addConstraint(Sketcher.Constraint("Coincident", 0, 2, 1, 2))
sketch20.addConstraint(Sketcher.Constraint("Coincident", 1, 1, 2, 1))
sketch20.addConstraint(Sketcher.Constraint("Tangent", 2, 2, 3, 2))
sketch20.addConstraint(Sketcher.Constraint("Tangent", 3, 1, 0, 1))
sketch20.addConstraint(Sketcher.Constraint("Horizontal", 0))
sketch20.addConstraint(Sketcher.Constraint("Vertical", 2))
sketch20.addConstraint(Sketcher.Constraint("Equal", 0, 2))
sketch20.addConstraint(Sketcher.Constraint("Radius", 3, Q("3 mm")))
sketch20.addConstraint(Sketcher.Constraint("Radius", 1, Q("12.105 mm")))
sketch20.addConstraint(Sketcher.Constraint("DistanceX", 1, 3, 3, 3, Q("6.2 mm")))
sketch20.addConstraint(Sketcher.Constraint("DistanceX", -1, 1, 1, 3, Q("11.975179 mm")))
sketch20.addConstraint(Sketcher.Constraint("DistanceY", 1, 3, -1, 1, Q("2.717632 mm")))
pocket19 = body.newObject("PartDesign::Pocket", "Pocket018")
pocket19.Profile = sketch20
pocket19.Type = "UpToFirst"
pocket19.Reversed = True

sketch21 = body.newObject("Sketcher::SketchObject", "Sketch020")
sketch21.AttachmentSupport = (doc.getObject("XZ_Plane"), [""])
sketch21.MapMode = "FlatFace"
sketch21.AttachmentOffset = App.Placement(Vector(0, 0, -23), App.Rotation())
sketch21.addGeometry(Part.LineSegment(Vector(3, -28, 0), Vector(-17, -28, 0)), False)
sketch21.addGeometry(Part.LineSegment(Vector(-17, -28, 0), Vector(-17, -16, 0)), False)
sketch21.addGeometry(Part.ArcOfCircle(Part.Circle(Vector(-26, -3, 0), Vector(0, 0, 1), 16), math.radians(-56), math.radians(56)), False)
sketch21.addGeometry(Part.LineSegment(Vector(-17, 11, 0), Vector(-17, 22, 0)), False)
sketch21.addGeometry(Part.LineSegment(Vector(-17, 22, 0), Vector(3, 22, 0)), False)
sketch21.addGeometry(Part.LineSegment(Vector(3, 22, 0), Vector(3, 11, 0)), False)
sketch21.addGeometry(Part.ArcOfCircle(Part.Circle(Vector(12, -3, 0), Vector(0, 0, 1), 16), math.radians(124), math.radians(236)), False)
sketch21.addGeometry(Part.LineSegment(Vector(3, -16, 0), Vector(3, -28, 0)), False)
sketch21.addConstraint(Sketcher.Constraint("Coincident", 0, 2, 1, 1))
sketch21.addConstraint(Sketcher.Constraint("Coincident", 1, 2, 2, 1))
sketch21.addConstraint(Sketcher.Constraint("Coincident", 2, 2, 3, 1))
sketch21.addConstraint(Sketcher.Constraint("Coincident", 3, 2, 4, 1))
sketch21.addConstraint(Sketcher.Constraint("Coincident", 4, 2, 5, 1))
sketch21.addConstraint(Sketcher.Constraint("Coincident", 5, 2, 6, 1))
sketch21.addConstraint(Sketcher.Constraint("Coincident", 6, 2, 7, 1))
sketch21.addConstraint(Sketcher.Constraint("Coincident", 7, 2, 0, 1))
sketch21.addConstraint(Sketcher.Constraint("Horizontal", 0))
sketch21.addConstraint(Sketcher.Constraint("Vertical", 1))
sketch21.addConstraint(Sketcher.Constraint("Vertical", 3))
sketch21.addConstraint(Sketcher.Constraint("Horizontal", 4))
sketch21.addConstraint(Sketcher.Constraint("Vertical", 5))
sketch21.addConstraint(Sketcher.Constraint("Vertical", 7))
sketch21.addConstraint(Sketcher.Constraint("Equal", 2, 6))
sketch21.addConstraint(Sketcher.Constraint("Horizontal", 2, 3, 6, 3))
sketch21.addConstraint(Sketcher.Constraint("Horizontal", 2, 2, 5, 2))
sketch21.addConstraint(Sketcher.Constraint("Horizontal", 1, 2, 6, 2))
sketch21.addConstraint(Sketcher.Constraint("Vertical", 1, 2, 2, 2))
sketch21.addConstraint(Sketcher.Constraint("Equal", 1, 3))
sketch21.addConstraint(Sketcher.Constraint("Radius", 2, Q("16 mm")))
sketch21.addConstraint(Sketcher.Constraint("DistanceX", 0, 2, 0, 1, Q("20 mm")))
sketch21.addConstraint(Sketcher.Constraint("DistanceY", 0, 2, 2, 3, Q("25 mm")))
sketch21.addConstraint(Sketcher.Constraint("DistanceX", 2, 3, 6, 3, Q("37.82 mm")))
sketch21.addConstraint(Sketcher.Constraint("DistanceX", 2, 3, -1, 1, Q("25.844821 mm")))
sketch21.addConstraint(Sketcher.Constraint("DistanceY", -1, 1, 2, 2, Q("10.571909 mm")))
pad2 = body.newObject("PartDesign::Pad", "Pad001")
pad2.Profile = sketch21
pad2.Length = 15

sketch22 = body.newObject("Sketcher::SketchObject", "Sketch021")
sketch22.AttachmentSupport = (doc.getObject("XY_Plane"), [""])
sketch22.MapMode = "FlatFace"
sketch22.AttachmentOffset = App.Placement(Vector(0, 0, 22.282368), App.Rotation())
sketch22.addGeometry(Part.Circle(Vector(-7, 14, 0), Vector(0, 0, 1), 7), False)
sketch22.addConstraint(Sketcher.Constraint("Diameter", 0, Q("13.8 mm")))
sketch22.addConstraint(Sketcher.Constraint("DistanceY", -1, 1, 0, 3, Q("14.5 mm")))
sketch22.addConstraint(Sketcher.Constraint("DistanceX", 0, 3, -1, 1, Q("6.934821 mm")))
pocket20 = body.newObject("PartDesign::Pocket", "Pocket019")
pocket20.Profile = sketch22
pocket20.Type = "UpToFirst"

sketch23 = body.newObject("Sketcher::SketchObject", "Sketch022")
sketch23.AttachmentSupport = (doc.getObject("XZ_Plane"), [""])
sketch23.MapMode = "FlatFace"
sketch23.AttachmentOffset = App.Placement(Vector(0, 0, -8), App.Rotation())
sketch23.addGeometry(Part.Circle(Vector(8.1, -23.5, 0), Vector(0, 0, 1), 1.7), False)
sketch23.addGeometry(Part.Circle(Vector(-21.9, -23.5, 0), Vector(0, 0, 1), 1.7), False)
sketch23.addGeometry(Part.Circle(Vector(-21.9, 18.1, 0), Vector(0, 0, 1), 1.7), False)
sketch23.addGeometry(Part.Circle(Vector(8.1, 17.8, 0), Vector(0, 0, 1), 1.7), False)
sketch23.addConstraint(Sketcher.Constraint("Equal", 0, 1))
sketch23.addConstraint(Sketcher.Constraint("Equal", 1, 2))
sketch23.addConstraint(Sketcher.Constraint("Equal", 2, 3))
sketch23.addConstraint(Sketcher.Constraint("Horizontal", 0, 3, 1, 3))
sketch23.addConstraint(Sketcher.Constraint("Vertical", 1, 3, 2, 3))
sketch23.addConstraint(Sketcher.Constraint("Vertical", 0, 3, 3, 3))
sketch23.addConstraint(Sketcher.Constraint("Diameter", 0, Q("3.4 mm")))
sketch23.addConstraint(Sketcher.Constraint("DistanceX", 1, 3, 0, 3, Q("30 mm")))
sketch23.addConstraint(Sketcher.Constraint("DistanceY", 1, 3, 2, 3, Q("41.6 mm")))
sketch23.addConstraint(Sketcher.Constraint("DistanceY", 3, 3, 2, 3, Q("0.260602 mm")))
sketch23.addConstraint(Sketcher.Constraint("DistanceX", -1, 1, 0, 3, Q("8.065179 mm")))
sketch23.addConstraint(Sketcher.Constraint("DistanceY", 0, 3, -1, 1, Q("23.517632 mm")))
doc.recompute()
hole = body.newObject("PartDesign::Hole", "Hole")
hole.Profile = sketch23
hole.ThreadType = "None"
hole.Diameter = 3.4
hole.DepthType = "Dimension"
hole.Depth = 10
hole.DrillPoint = "Angled"
hole.DrillPointAngle = 118
hole.HoleCutType = "Countersink"
hole.HoleCutDiameter = 7.5
hole.HoleCutCountersinkAngle = 90
hole.Reversed = True

doc.recompute()
